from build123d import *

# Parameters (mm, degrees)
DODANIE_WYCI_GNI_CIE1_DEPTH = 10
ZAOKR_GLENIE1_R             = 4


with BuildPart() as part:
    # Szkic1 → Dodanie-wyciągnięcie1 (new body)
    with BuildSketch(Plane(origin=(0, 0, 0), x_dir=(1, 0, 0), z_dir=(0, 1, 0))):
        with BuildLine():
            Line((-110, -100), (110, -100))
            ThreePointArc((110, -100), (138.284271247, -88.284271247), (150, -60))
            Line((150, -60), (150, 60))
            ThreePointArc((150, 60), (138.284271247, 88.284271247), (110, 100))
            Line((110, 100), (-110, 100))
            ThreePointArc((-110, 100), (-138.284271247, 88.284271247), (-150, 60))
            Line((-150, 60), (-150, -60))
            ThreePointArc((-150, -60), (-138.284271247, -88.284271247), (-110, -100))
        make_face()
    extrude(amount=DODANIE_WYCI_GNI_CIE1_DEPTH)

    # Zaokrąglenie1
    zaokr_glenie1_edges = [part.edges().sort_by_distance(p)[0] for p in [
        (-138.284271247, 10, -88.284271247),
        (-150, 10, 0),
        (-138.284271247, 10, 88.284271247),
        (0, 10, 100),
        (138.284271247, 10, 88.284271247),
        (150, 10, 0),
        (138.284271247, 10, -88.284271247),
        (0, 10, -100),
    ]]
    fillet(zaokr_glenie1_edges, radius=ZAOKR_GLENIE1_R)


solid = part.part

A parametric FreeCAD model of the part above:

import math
import FreeCAD as App
import Part
import Sketcher

V = App.Vector


def edges_at(feature, points):
    """Names of the edges that pass closest to the given points."""
    edges = feature.Shape.Edges
    near = lambda p: min(range(len(edges)), key=lambda i: edges[i].distToShape(Part.Vertex(*p))[0])
    return sorted({f"Edge{near(p) + 1}" for p in points})

doc = App.newDocument("Part")
body = doc.addObject("PartDesign::Body", "Body")

sketch1 = body.newObject("Sketcher::SketchObject", "Sketch")
sketch1.AttachmentSupport = (doc.getObject("XZ_Plane"), [""])
sketch1.MapMode = "FlatFace"
sketch1.addGeometry(Part.LineSegment(V(-110, 100, 0), V(110, 100, 0)), False)
sketch1.addGeometry(Part.ArcOfCircle(Part.Circle(V(110, 60, 0), V(0, 0, 1), 40), math.radians(0), math.radians(90)), False)
sketch1.addGeometry(Part.LineSegment(V(150, 60, 0), V(150, -60, 0)), False)
sketch1.addGeometry(Part.ArcOfCircle(Part.Circle(V(110, -60, 0), V(0, 0, 1), 40), math.radians(-90), math.radians(0)), False)
sketch1.addGeometry(Part.LineSegment(V(110, -100, 0), V(-110, -100, 0)), False)
sketch1.addGeometry(Part.ArcOfCircle(Part.Circle(V(-110, -60, 0), V(0, 0, 1), 40), math.radians(-180), math.radians(-90)), False)
sketch1.addGeometry(Part.LineSegment(V(-150, -60, 0), V(-150, 60, 0)), False)
sketch1.addGeometry(Part.ArcOfCircle(Part.Circle(V(-110, 60, 0), V(0, 0, 1), 40), math.radians(90), math.radians(180)), False)
sketch1.addConstraint(Sketcher.Constraint("Tangent", 0, 2, 1, 2))
sketch1.addConstraint(Sketcher.Constraint("Tangent", 1, 1, 2, 1))
sketch1.addConstraint(Sketcher.Constraint("Tangent", 2, 2, 3, 2))
sketch1.addConstraint(Sketcher.Constraint("Tangent", 3, 1, 4, 1))
sketch1.addConstraint(Sketcher.Constraint("Tangent", 4, 2, 5, 2))
sketch1.addConstraint(Sketcher.Constraint("Tangent", 5, 1, 6, 1))
sketch1.addConstraint(Sketcher.Constraint("Tangent", 6, 2, 7, 2))
sketch1.addConstraint(Sketcher.Constraint("Tangent", 7, 1, 0, 1))
sketch1.addConstraint(Sketcher.Constraint("Horizontal", 0))
sketch1.addConstraint(Sketcher.Constraint("Vertical", 2))
sketch1.addConstraint(Sketcher.Constraint("Horizontal", 4))
sketch1.addConstraint(Sketcher.Constraint("Vertical", 6))
sketch1.addConstraint(Sketcher.Constraint("Equal", 1, 3))
sketch1.addConstraint(Sketcher.Constraint("Equal", 3, 5))
sketch1.addConstraint(Sketcher.Constraint("Equal", 5, 7))
sketch1.addConstraint(Sketcher.Constraint("Symmetric", 1, 3, 5, 3, -1, 1))
sketch1.addConstraint(Sketcher.Constraint("Radius", 1, 40.0))
sketch1.addConstraint(Sketcher.Constraint("DistanceX", 0, 1, 0, 2, 220.0))
sketch1.addConstraint(Sketcher.Constraint("DistanceY", 2, 2, 2, 1, 120.0))
pad1 = body.newObject("PartDesign::Pad", "Pad")
pad1.Profile = sketch1
pad1.Length = 10
pad1.Reversed = True
doc.recompute()

fillet = body.newObject("PartDesign::Fillet", "Fillet")
fillet.Base = (pad1, edges_at(pad1, [
    (-138.284, 10, -88.284),
    (-150, 10, 0),
    (-138.284, 10, 88.284),
    (0, 10, 100),
    (138.284, 10, 88.284),
    (150, 10, 0),
    (138.284, 10, -88.284),
    (0, 10, -100),
]))
fillet.Radius = 4

doc.recompute()
